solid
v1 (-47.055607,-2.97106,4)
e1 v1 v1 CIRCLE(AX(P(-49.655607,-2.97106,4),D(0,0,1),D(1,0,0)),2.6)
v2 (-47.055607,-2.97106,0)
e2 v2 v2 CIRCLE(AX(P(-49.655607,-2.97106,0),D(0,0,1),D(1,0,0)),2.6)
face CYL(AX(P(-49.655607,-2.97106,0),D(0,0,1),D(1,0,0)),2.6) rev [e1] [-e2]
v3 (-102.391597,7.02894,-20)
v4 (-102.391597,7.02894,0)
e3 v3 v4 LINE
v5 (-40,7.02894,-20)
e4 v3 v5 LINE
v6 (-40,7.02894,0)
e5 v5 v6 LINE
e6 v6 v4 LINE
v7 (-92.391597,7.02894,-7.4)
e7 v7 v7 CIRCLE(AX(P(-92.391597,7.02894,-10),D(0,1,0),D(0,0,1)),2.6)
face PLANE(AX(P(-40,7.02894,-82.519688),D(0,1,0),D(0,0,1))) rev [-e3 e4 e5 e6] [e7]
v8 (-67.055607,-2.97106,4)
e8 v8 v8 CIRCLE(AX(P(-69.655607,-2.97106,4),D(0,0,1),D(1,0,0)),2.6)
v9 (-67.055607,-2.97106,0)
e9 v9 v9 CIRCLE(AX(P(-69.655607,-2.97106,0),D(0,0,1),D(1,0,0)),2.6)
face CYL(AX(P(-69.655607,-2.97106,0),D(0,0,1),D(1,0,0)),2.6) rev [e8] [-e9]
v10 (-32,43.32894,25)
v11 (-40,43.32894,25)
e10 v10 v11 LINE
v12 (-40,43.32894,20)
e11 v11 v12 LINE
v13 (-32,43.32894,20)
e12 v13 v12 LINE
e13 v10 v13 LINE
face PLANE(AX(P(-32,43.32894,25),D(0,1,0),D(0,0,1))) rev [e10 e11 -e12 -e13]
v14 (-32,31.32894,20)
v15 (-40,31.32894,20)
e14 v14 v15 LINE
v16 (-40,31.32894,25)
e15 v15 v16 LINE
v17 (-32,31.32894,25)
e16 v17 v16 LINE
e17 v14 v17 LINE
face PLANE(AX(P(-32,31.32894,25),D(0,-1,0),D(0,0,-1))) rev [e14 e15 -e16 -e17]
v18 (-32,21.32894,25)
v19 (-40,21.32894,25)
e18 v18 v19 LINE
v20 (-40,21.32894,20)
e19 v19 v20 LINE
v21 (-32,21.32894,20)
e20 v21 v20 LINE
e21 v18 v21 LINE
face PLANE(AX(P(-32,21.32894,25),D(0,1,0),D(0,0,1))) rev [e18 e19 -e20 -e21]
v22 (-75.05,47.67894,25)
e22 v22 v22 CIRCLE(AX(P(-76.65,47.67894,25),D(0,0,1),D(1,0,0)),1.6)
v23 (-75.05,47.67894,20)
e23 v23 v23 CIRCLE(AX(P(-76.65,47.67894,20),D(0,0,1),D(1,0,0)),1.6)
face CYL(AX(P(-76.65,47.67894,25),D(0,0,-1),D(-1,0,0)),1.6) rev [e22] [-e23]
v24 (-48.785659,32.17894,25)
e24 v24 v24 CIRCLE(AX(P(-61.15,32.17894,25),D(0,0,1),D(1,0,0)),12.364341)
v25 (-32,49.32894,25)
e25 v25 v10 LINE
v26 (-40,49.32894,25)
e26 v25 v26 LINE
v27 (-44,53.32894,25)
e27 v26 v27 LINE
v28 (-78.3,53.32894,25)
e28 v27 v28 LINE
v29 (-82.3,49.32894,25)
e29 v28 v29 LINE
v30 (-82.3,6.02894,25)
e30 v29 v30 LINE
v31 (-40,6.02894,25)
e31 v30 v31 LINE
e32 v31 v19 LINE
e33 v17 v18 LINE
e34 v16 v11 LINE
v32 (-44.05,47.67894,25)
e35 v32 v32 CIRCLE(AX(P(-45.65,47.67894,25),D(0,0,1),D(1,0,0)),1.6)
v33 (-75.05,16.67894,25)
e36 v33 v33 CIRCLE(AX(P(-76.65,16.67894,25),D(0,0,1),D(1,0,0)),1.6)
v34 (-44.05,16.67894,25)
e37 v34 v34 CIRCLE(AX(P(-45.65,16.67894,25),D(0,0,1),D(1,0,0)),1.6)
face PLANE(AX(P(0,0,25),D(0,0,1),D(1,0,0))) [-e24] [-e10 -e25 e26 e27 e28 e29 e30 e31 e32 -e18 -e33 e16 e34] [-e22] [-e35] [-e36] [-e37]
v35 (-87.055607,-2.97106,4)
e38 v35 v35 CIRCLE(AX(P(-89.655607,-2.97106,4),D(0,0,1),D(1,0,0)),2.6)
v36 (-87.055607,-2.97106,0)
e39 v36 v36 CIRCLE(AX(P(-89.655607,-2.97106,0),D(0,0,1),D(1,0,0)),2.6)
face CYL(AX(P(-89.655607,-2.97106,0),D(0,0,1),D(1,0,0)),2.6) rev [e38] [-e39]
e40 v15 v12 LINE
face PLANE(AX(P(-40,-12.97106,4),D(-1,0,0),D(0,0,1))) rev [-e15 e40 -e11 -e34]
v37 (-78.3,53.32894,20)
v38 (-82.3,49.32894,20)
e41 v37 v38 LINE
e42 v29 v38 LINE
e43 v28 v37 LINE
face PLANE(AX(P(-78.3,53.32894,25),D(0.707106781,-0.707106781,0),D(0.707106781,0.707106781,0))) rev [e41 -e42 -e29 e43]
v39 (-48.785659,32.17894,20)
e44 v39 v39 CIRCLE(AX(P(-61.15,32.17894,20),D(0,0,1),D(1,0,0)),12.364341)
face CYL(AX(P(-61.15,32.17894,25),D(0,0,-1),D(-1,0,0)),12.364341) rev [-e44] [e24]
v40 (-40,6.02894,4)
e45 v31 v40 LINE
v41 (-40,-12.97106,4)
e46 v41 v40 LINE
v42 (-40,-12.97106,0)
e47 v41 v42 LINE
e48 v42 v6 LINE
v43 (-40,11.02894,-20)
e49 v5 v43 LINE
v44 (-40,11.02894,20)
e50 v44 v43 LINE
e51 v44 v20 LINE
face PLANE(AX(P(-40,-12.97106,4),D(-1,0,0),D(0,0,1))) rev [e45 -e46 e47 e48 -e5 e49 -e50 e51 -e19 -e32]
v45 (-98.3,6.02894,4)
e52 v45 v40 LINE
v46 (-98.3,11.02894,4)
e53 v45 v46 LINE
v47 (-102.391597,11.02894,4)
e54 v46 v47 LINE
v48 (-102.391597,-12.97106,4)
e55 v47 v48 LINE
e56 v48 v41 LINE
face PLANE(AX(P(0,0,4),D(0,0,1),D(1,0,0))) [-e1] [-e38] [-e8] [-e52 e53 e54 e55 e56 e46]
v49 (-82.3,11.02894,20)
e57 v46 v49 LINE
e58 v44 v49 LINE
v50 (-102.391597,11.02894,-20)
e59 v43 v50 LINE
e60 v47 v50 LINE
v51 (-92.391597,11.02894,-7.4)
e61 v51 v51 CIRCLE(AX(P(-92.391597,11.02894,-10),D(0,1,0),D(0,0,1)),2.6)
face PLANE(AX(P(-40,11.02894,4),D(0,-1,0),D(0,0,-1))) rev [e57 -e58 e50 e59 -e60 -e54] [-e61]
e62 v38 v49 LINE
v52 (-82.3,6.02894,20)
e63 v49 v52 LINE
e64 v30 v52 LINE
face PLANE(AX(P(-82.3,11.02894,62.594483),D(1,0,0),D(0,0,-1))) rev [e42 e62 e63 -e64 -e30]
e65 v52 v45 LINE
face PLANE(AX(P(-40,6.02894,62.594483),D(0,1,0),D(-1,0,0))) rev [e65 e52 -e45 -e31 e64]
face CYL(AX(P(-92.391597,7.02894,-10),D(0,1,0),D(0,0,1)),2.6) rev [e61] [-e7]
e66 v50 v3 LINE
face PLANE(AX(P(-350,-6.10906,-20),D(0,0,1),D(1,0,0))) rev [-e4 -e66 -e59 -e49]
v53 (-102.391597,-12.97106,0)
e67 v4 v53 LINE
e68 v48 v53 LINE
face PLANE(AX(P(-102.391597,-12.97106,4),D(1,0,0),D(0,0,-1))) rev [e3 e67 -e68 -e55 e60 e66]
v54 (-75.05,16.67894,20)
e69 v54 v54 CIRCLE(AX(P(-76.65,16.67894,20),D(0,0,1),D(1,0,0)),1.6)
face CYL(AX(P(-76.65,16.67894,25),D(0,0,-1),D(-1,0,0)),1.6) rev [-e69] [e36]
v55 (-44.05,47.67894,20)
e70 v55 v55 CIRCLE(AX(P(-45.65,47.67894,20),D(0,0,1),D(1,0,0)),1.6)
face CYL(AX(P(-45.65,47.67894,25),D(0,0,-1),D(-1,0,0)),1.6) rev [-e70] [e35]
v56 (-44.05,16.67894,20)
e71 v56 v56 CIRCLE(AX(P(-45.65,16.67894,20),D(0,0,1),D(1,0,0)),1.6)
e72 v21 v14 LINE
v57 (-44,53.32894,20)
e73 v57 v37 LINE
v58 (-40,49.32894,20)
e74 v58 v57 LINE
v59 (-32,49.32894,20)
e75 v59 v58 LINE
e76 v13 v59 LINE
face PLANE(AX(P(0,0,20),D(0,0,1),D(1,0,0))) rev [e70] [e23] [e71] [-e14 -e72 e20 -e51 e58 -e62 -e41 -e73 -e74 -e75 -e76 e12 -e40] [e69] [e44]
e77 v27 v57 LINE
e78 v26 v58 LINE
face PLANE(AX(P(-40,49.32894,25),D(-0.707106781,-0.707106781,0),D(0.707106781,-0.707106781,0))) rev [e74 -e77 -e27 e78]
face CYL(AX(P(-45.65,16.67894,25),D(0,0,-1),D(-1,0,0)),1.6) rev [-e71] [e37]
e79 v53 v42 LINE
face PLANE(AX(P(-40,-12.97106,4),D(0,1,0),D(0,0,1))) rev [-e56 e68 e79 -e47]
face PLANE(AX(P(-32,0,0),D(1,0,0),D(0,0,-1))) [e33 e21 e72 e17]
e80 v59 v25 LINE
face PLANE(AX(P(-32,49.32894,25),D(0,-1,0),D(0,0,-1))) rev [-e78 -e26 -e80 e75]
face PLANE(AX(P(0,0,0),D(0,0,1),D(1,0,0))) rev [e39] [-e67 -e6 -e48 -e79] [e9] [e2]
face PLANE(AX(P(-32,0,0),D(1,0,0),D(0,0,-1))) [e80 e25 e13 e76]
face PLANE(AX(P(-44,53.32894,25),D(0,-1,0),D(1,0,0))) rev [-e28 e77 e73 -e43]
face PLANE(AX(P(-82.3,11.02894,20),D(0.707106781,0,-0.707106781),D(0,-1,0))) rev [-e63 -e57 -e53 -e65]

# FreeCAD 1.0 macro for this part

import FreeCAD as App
import Part
import Sketcher
from FreeCAD import Vector


def edges_at(feature, points):
    """Names of the edges that pass closest to the given points."""
    edges = feature.Shape.Edges
    near = lambda p: min(range(len(edges)), key=lambda i: edges[i].distToShape(Part.Vertex(*p))[0])
    return sorted({f"Edge{near(p) + 1}" for p in points})

doc = App.newDocument("Part")
body = doc.addObject("PartDesign::Body", "Body")

# Sketch on XY plane
sketch1 = doc.addObject("Sketcher::SketchObject", "Sketch")
body.addObject(sketch1)
sketch1.AttachmentSupport = (doc.XY_Plane, [""])
sketch1.MapMode = "FlatFace"
sketch1.addGeometry([
    Part.LineSegment(Vector(-102, 11, 0), Vector(-102, -13, 0)),
    Part.LineSegment(Vector(-102, -13, 0), Vector(-40, -13, 0)),
    Part.LineSegment(Vector(-40, -13, 0), Vector(-40, 11, 0)),
    Part.LineSegment(Vector(-40, 11, 0), Vector(-102, 11, 0)),
], False)
sketch1.addConstraint([
    Sketcher.Constraint("Coincident", 0, 2, 1, 1),
    Sketcher.Constraint("Coincident", 1, 2, 2, 1),
    Sketcher.Constraint("Coincident", 2, 2, 3, 1),
    Sketcher.Constraint("Coincident", 3, 2, 0, 1),
    Sketcher.Constraint("Vertical", 0),
    Sketcher.Constraint("Horizontal", 1),
    Sketcher.Constraint("Vertical", 2),
    Sketcher.Constraint("Horizontal", 3),
    Sketcher.Constraint("DistanceY", 0, 2, 0, 1, 24.0),
    Sketcher.Constraint("DistanceX", 1, 2, -1, 1, 40.0),
    Sketcher.Constraint("DistanceX", 1, 1, 1, 2, 62.391597),
    Sketcher.Constraint("DistanceY", 0, 2, -1, 1, 12.97106),
])
pad1 = doc.addObject("PartDesign::Pad", "Pad")
body.addObject(pad1)
pad1.Profile = sketch1
pad1.Length = 4

# Sketch on XY plane
sketch2 = doc.addObject("Sketcher::SketchObject", "Sketch001")
body.addObject(sketch2)
sketch2.AttachmentSupport = (doc.XY_Plane, [""])
sketch2.MapMode = "FlatFace"
sketch2.AttachmentOffset = App.Placement(Vector(0, 0, 4), App.Rotation())
sketch2.addGeometry([
    Part.LineSegment(Vector(-82, 11, 0), Vector(-82, 6, 0)),
    Part.LineSegment(Vector(-82, 6, 0), Vector(-40, 6, 0)),
    Part.LineSegment(Vector(-40, 6, 0), Vector(-40, 11, 0)),
    Part.LineSegment(Vector(-40, 11, 0), Vector(-82, 11, 0)),
], False)
sketch2.addConstraint([
    Sketcher.Constraint("Coincident", 0, 2, 1, 1),
    Sketcher.Constraint("Coincident", 1, 2, 2, 1),
    Sketcher.Constraint("Coincident", 2, 2, 3, 1),
    Sketcher.Constraint("Coincident", 3, 2, 0, 1),
    Sketcher.Constraint("Vertical", 0),
    Sketcher.Constraint("Horizontal", 1),
    Sketcher.Constraint("Vertical", 2),
    Sketcher.Constraint("Horizontal", 3),
    Sketcher.Constraint("DistanceY", 0, 2, 0, 1, 5.0),
    Sketcher.Constraint("DistanceX", 1, 1, 1, 2, 42.3),
    Sketcher.Constraint("DistanceX", 1, 2, -1, 1, 40.0),
    Sketcher.Constraint("DistanceY", -1, 1, 0, 2, 6.02894),
])
pad2 = doc.addObject("PartDesign::Pad", "Pad001")
body.addObject(pad2)
pad2.Profile = sketch2
pad2.Length = 16

# Sketch on XY plane
sketch3 = doc.addObject("Sketcher::SketchObject", "Sketch002")
body.addObject(sketch3)
sketch3.AttachmentSupport = (doc.XY_Plane, [""])
sketch3.MapMode = "FlatFace"
sketch3.AttachmentOffset = App.Placement(Vector(0, 0, 20), App.Rotation())
sketch3.addGeometry([
    Part.LineSegment(Vector(-82.3, 6, 0), Vector(-40, 6, 0)),  # 0
    Part.LineSegment(Vector(-40, 6, 0), Vector(-40, 49.3, 0)),  # 1
    Part.LineSegment(Vector(-40, 49.3, 0), Vector(-44, 53.3, 0)),  # 2
    Part.LineSegment(Vector(-44, 53.3, 0), Vector(-78.3, 53.3, 0)),  # 3
    Part.LineSegment(Vector(-78.3, 53.3, 0), Vector(-82.3, 49.3, 0)),  # 4
    Part.LineSegment(Vector(-82.3, 49.3, 0), Vector(-82.3, 6, 0)),  # 5
    Part.Circle(Vector(-45.6, 16.7, 0), Vector(0, 0, 1), 1.6),  # 6
    Part.Circle(Vector(-76.7, 16.7, 0), Vector(0, 0, 1), 1.6),  # 7
    Part.Circle(Vector(-45.6, 47.7, 0), Vector(0, 0, 1), 1.6),  # 8
    Part.Circle(Vector(-61.1, 32.2, 0), Vector(0, 0, 1), 12.4),  # 9
    Part.Circle(Vector(-76.7, 47.7, 0), Vector(0, 0, 1), 1.6),  # 10
], False)
sketch3.addConstraint([
    Sketcher.Constraint("Coincident", 0, 2, 1, 1),
    Sketcher.Constraint("Coincident", 1, 2, 2, 1),
    Sketcher.Constraint("Coincident", 2, 2, 3, 1),
    Sketcher.Constraint("Coincident", 3, 2, 4, 1),
    Sketcher.Constraint("Coincident", 4, 2, 5, 1),
    Sketcher.Constraint("Coincident", 5, 2, 0, 1),
    Sketcher.Constraint("Horizontal", 0),
    Sketcher.Constraint("Vertical", 1),
    Sketcher.Constraint("Horizontal", 3),
    Sketcher.Constraint("Vertical", 5),
    Sketcher.Constraint("Equal", 6, 7),
    Sketcher.Constraint("Equal", 7, 8),
    Sketcher.Constraint("Equal", 8, 10),
    Sketcher.Constraint("Perpendicular", 2, 4),
    Sketcher.Constraint("Horizontal", 6, 3, 7, 3),
    Sketcher.Constraint("Horizontal", 8, 3, 10, 3),
    Sketcher.Constraint("Horizontal", 1, 2, 4, 2),
    Sketcher.Constraint("Vertical", 6, 3, 8, 3),
    Sketcher.Constraint("Vertical", 7, 3, 10, 3),
    Sketcher.Constraint("Equal", 2, 4),
    Sketcher.Constraint("Diameter", 6, 3.2),
    Sketcher.Constraint("DistanceX", 0, 1, 0, 2, 42.3),
    Sketcher.Constraint("DistanceX", 3, 2, 3, 1, 34.3),
    Sketcher.Constraint("DistanceY", 1, 1, 1, 2, 43.3),
    Sketcher.Constraint("DistanceX", 0, 2, -1, 1, 40.0),
    Sketcher.Constraint("DistanceX", 7, 3, 6, 3, 31.0),
    Sketcher.Constraint("DistanceY", 6, 3, 8, 3, 31.0),
    Sketcher.Constraint("DistanceX", 9, 3, 6, 3, 15.5),
    Sketcher.Constraint("DistanceY", 6, 3, 9, 3, 15.5),
    Sketcher.Constraint("Diameter", 9, 24.728682),
    Sketcher.Constraint("DistanceX", 6, 3, -1, 1, 45.65),
    Sketcher.Constraint("DistanceY", 0, 2, 6, 3, 10.65),
    Sketcher.Constraint("DistanceY", -1, 1, 6, 3, 16.67894),
])
pad3 = doc.addObject("PartDesign::Pad", "Pad002")
body.addObject(pad3)
pad3.Profile = sketch3
pad3.Length = 5
doc.recompute()

chamfer = doc.addObject("PartDesign::Chamfer", "Chamfer")
body.addObject(chamfer)
chamfer.Base = (pad3, edges_at(pad3, [(-82.3, 8.529, 4)]))
chamfer.Size = 16

# Sketch on XY plane
sketch4 = doc.addObject("Sketcher::SketchObject", "Sketch003")
body.addObject(sketch4)
sketch4.AttachmentSupport = (doc.XY_Plane, [""])
sketch4.MapMode = "FlatFace"
sketch4.AttachmentOffset = App.Placement(Vector(0, 0, 4), App.Rotation())
sketch4.addGeometry([
    Part.Circle(Vector(-89.7, -3, 0), Vector(0, 0, 1), 2.6),
    Part.Circle(Vector(-69.7, -3, 0), Vector(0, 0, 1), 2.6),
    Part.Circle(Vector(-49.7, -3, 0), Vector(0, 0, 1), 2.6),
], False)
sketch4.addConstraint([
    Sketcher.Constraint("Equal", 0, 1),
    Sketcher.Constraint("Equal", 1, 2),
    Sketcher.Constraint("Horizontal", 0, 3, 1, 3),
    Sketcher.Constraint("Horizontal", 1, 3, 2, 3),
    Sketcher.Constraint("Diameter", 0, 5.2),
    Sketcher.Constraint("DistanceX", 0, 3, 1, 3, 20.0),
    Sketcher.Constraint("DistanceX", 1, 3, 2, 3, 20.0),
    Sketcher.Constraint("DistanceY", 0, 3, -1, 1, 2.97106),
    Sketcher.Constraint("DistanceX", 0, 3, -1, 1, 89.655607),
])
pocket1 = doc.addObject("PartDesign::Pocket", "Pocket")
body.addObject(pocket1)
pocket1.Profile = sketch4
pocket1.Length = 4

# Sketch on XY plane
sketch5 = doc.addObject("Sketcher::SketchObject", "Sketch004")
body.addObject(sketch5)
sketch5.AttachmentSupport = (doc.XY_Plane, [""])
sketch5.MapMode = "FlatFace"
sketch5.addGeometry([
    Part.LineSegment(Vector(-40, 11, 0), Vector(-40, 7, 0)),
    Part.LineSegment(Vector(-40, 7, 0), Vector(-102.4, 7, 0)),
    Part.LineSegment(Vector(-102.4, 7, 0), Vector(-102.4, 11, 0)),
    Part.LineSegment(Vector(-102.4, 11, 0), Vector(-40, 11, 0)),
], False)
sketch5.addConstraint([
    Sketcher.Constraint("Coincident", 0, 2, 1, 1),
    Sketcher.Constraint("Coincident", 1, 2, 2, 1),
    Sketcher.Constraint("Coincident", 2, 2, 3, 1),
    Sketcher.Constraint("Coincident", 3, 2, 0, 1),
    Sketcher.Constraint("Vertical", 0),
    Sketcher.Constraint("Horizontal", 1),
    Sketcher.Constraint("Vertical", 2),
    Sketcher.Constraint("Horizontal", 3),
    Sketcher.Constraint("DistanceY", 0, 2, 0, 1, 4.0),
    Sketcher.Constraint("DistanceX", 0, 2, -1, 1, 40.0),
    Sketcher.Constraint("DistanceX", 1, 2, 1, 1, 62.391597),
    Sketcher.Constraint("DistanceY", -1, 1, 0, 2, 7.02894),
])
pad4 = doc.addObject("PartDesign::Pad", "Pad003")
body.addObject(pad4)
pad4.Profile = sketch5
pad4.Length = 20
pad4.Reversed = True

# Sketch on XZ plane
sketch6 = doc.addObject("Sketcher::SketchObject", "Sketch005")
body.addObject(sketch6)
sketch6.AttachmentSupport = (doc.XZ_Plane, [""])
sketch6.MapMode = "FlatFace"
sketch6.AttachmentOffset = App.Placement(Vector(0, 0, -11.02894), App.Rotation())
sketch6.addGeometry(Part.Circle(Vector(-92.4, -10, 0), Vector(0, 0, 1), 2.6), False)
sketch6.addConstraint([
    Sketcher.Constraint("Diameter", 0, 5.2),
    Sketcher.Constraint("DistanceY", 0, 3, -1, 1, 10.0),
    Sketcher.Constraint("DistanceX", 0, 3, -1, 1, 92.391597),
])
pocket2 = doc.addObject("PartDesign::Pocket", "Pocket001")
body.addObject(pocket2)
pocket2.Profile = sketch6
pocket2.Length = 4
pocket2.Reversed = True

# Sketch on YZ plane
sketch7 = doc.addObject("Sketcher::SketchObject", "Sketch006")
body.addObject(sketch7)
sketch7.AttachmentSupport = (doc.YZ_Plane, [""])
sketch7.MapMode = "FlatFace"
sketch7.AttachmentOffset = App.Placement(Vector(0, 0, -40), App.Rotation())
sketch7.addGeometry([
    Part.LineSegment(Vector(49, 25, 0), Vector(43, 25, 0)),  # 0
    Part.LineSegment(Vector(43, 25, 0), Vector(43, 20, 0)),  # 1
    Part.LineSegment(Vector(43, 20, 0), Vector(49, 20, 0)),  # 2
    Part.LineSegment(Vector(49, 20, 0), Vector(49, 25, 0)),  # 3
    Part.LineSegment(Vector(31, 25, 0), Vector(21, 25, 0)),  # 4
    Part.LineSegment(Vector(21, 25, 0), Vector(21, 20, 0)),  # 5
    Part.LineSegment(Vector(21, 20, 0), Vector(31, 20, 0)),  # 6
    Part.LineSegment(Vector(31, 20, 0), Vector(31, 25, 0)),  # 7
], False)
sketch7.addConstraint([
    Sketcher.Constraint("Coincident", 0, 2, 1, 1),
    Sketcher.Constraint("Coincident", 1, 2, 2, 1),
    Sketcher.Constraint("Coincident", 2, 2, 3, 1),
    Sketcher.Constraint("Coincident", 3, 2, 0, 1),
    Sketcher.Constraint("Coincident", 4, 2, 5, 1),
    Sketcher.Constraint("Coincident", 5, 2, 6, 1),
    Sketcher.Constraint("Coincident", 6, 2, 7, 1),
    Sketcher.Constraint("Coincident", 7, 2, 4, 1),
    Sketcher.Constraint("Horizontal", 0),
    Sketcher.Constraint("Vertical", 1),
    Sketcher.Constraint("Horizontal", 2),
    Sketcher.Constraint("Vertical", 3),
    Sketcher.Constraint("Horizontal", 4),
    Sketcher.Constraint("Vertical", 5),
    Sketcher.Constraint("Horizontal", 6),
    Sketcher.Constraint("Vertical", 7),
    Sketcher.Constraint("Horizontal", 3, 2, 4, 2),
    Sketcher.Constraint("Horizontal", 2, 2, 5, 2),
    Sketcher.Constraint("DistanceX", 0, 2, 0, 1, 6.0),
    Sketcher.Constraint("DistanceX", 4, 2, 4, 1, 10.0),
    Sketcher.Constraint("DistanceY", 1, 2, 1, 1, 5.0),
    Sketcher.Constraint("DistanceY", -1, 1, 0, 2, 25.0),
    Sketcher.Constraint("DistanceX", 4, 2, 0, 2, 22.0),
    Sketcher.Constraint("DistanceX", -1, 1, 0, 2, 43.32894),
])
pad5 = doc.addObject("PartDesign::Pad", "Pad004")
body.addObject(pad5)
pad5.Profile = sketch7
pad5.Length = 8

doc.recompute()
